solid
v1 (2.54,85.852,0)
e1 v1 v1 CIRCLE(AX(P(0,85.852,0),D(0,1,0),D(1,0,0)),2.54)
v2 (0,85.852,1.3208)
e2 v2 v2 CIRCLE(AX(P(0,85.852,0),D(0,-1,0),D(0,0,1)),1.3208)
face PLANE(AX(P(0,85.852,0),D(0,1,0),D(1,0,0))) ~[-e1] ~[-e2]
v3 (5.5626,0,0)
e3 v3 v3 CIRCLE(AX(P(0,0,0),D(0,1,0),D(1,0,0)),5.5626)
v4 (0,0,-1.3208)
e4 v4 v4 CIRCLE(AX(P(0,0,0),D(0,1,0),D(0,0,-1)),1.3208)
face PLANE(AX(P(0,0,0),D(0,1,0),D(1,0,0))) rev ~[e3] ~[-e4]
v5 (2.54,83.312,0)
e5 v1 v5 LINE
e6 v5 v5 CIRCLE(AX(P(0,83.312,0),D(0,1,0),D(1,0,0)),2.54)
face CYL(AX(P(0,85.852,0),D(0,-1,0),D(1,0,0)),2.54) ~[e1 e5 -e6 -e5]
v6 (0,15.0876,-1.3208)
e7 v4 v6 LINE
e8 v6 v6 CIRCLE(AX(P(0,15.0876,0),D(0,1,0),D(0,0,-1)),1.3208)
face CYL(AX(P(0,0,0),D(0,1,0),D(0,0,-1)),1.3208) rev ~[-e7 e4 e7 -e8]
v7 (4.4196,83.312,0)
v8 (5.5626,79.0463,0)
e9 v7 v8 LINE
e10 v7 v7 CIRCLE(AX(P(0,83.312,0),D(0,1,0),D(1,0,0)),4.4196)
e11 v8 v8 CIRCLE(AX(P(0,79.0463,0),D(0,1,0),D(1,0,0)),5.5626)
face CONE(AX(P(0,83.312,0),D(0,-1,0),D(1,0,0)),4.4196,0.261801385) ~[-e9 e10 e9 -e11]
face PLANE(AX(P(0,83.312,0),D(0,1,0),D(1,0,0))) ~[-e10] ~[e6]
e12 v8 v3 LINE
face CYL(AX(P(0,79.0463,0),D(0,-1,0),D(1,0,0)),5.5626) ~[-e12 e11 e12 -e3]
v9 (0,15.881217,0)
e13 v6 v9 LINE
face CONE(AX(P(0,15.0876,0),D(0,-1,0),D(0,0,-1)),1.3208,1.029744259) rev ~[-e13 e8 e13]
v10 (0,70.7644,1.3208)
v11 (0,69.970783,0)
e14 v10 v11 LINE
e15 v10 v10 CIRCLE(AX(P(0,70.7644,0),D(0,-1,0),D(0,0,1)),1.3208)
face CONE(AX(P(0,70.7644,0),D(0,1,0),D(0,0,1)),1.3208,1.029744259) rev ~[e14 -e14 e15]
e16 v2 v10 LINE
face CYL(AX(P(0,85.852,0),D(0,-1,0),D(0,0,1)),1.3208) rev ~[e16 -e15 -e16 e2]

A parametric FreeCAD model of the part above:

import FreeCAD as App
import Part
import Sketcher

V = App.Vector
Q = App.Units.Quantity


def add_polygon(sketch, points):
    """Adds a closed chain of lines whose ends are joined by coincident constraints."""
    first, n = sketch.GeometryCount, len(points)
    for a, b in zip(points, points[1:] + points[:1]):
        sketch.addGeometry(Part.LineSegment(App.Vector(*a, 0), App.Vector(*b, 0)), False)
    for i in range(n):
        sketch.addConstraint(Sketcher.Constraint("Coincident", first + i, 2, first + (i + 1) % n, 1))

doc = App.newDocument("Part")
params = doc.addObject("Spreadsheet::Sheet", "Params")
for row, (alias, value) in enumerate([
    ("sketch1_width", "0.1 in"),
    ("sketch1_width2", "0.219 in"),
    ("revolution_angle", "360 deg"),
    ("sketch2_diameter", "0.104 in"),
    ("hole_diameter", "0.104 in"),
    ("hole_depth", "0.594 in"),
    ("sketch3_diameter", "0.104 in"),
    ("hole2_diameter", "0.104 in"),
    ("hole2_depth", "0.594 in"),
], start=1):
    params.set(f"A{row}", alias)
    params.set(f"B{row}", "=" + value)
    params.setAlias(f"B{row}", alias)

body = doc.addObject("PartDesign::Body", "Body")

sketch1 = body.newObject("Sketcher::SketchObject", "Sketch")
sketch1.AttachmentSupport = (doc.getObject("XY_Plane"), [""])
sketch1.MapMode = "FlatFace"
add_polygon(sketch1, [(0, 85.9), (0, 0), (5.6, 0), (5.6, 79), (4.4, 83.3), (2.5, 83.3), (2.5, 85.9)])
sketch1.addConstraint([
    Sketcher.Constraint("Vertical", 0),
    Sketcher.Constraint("Horizontal", 1),
    Sketcher.Constraint("Vertical", 2),
    Sketcher.Constraint("Horizontal", 4),
    Sketcher.Constraint("Vertical", 5),
    Sketcher.Constraint("Horizontal", 6),
    Sketcher.Constraint("Coincident", 0, 2, -1, 1),
    Sketcher.Constraint("Equal", 6, 5),
    Sketcher.Constraint("DistanceX", 6, 2, 6, 1, Q("0.1 in")),
    Sketcher.Constraint("DistanceX", 1, 1, 1, 2, Q("0.219 in")),
    Sketcher.Constraint("DistanceY", -1, 1, 3, 2, Q("3.28 in")),
    Sketcher.Constraint("Angle", 3, Q("105 deg")),
    Sketcher.Constraint("DistanceX", 3, 2, 2, 2, Q("0.045 in")),
])
sketch1.setExpression("Constraints[15]", "Params.sketch1_width")
sketch1.setExpression("Constraints[16]", "Params.sketch1_width2")
revolution = body.newObject("PartDesign::Revolution", "Revolution")
revolution.Profile = sketch1
revolution.ReferenceAxis = (sketch1, ["V_Axis"])
revolution.setExpression("Angle", "Params.revolution_angle")

sketch2 = body.newObject("Sketcher::SketchObject", "Sketch001")
sketch2.AttachmentSupport = (doc.getObject("XZ_Plane"), [""])
sketch2.MapMode = "FlatFace"
sketch2.addGeometry(Part.Circle(V(0, 0, 0), V(0, 0, 1), 1.3), False)
sketch2.addConstraint([
    Sketcher.Constraint("Coincident", 0, 3, -1, 1),
    Sketcher.Constraint("Diameter", 0, Q("0.104 in")),
])
sketch2.setExpression("Constraints[1]", "Params.sketch2_diameter")
doc.recompute()
hole = body.newObject("PartDesign::Hole", "Hole")
hole.Profile = sketch2
hole.ThreadType = "None"
hole.setExpression("Diameter", "Params.hole_diameter")
hole.DepthType = "Dimension"
hole.setExpression("Depth", "Params.hole_depth")
hole.DrillPoint = "Angled"
hole.DrillPointAngle = 118

sketch3 = body.newObject("Sketcher::SketchObject", "Sketch002")
sketch3.AttachmentSupport = (doc.getObject("XZ_Plane"), [""])
sketch3.MapMode = "FlatFace"
sketch3.AttachmentOffset = App.Placement(V(0, 0, -3.38 * 25.4), App.Rotation())
sketch3.addGeometry(Part.Circle(V(0, 0, 0), V(0, 0, 1), 1.3), False)
sketch3.addConstraint([
    Sketcher.Constraint("Coincident", 0, 3, -1, 1),
    Sketcher.Constraint("Diameter", 0, Q("0.104 in")),
])
sketch3.setExpression("Constraints[1]", "Params.sketch3_diameter")
doc.recompute()
hole2 = body.newObject("PartDesign::Hole", "Hole001")
hole2.Profile = sketch3
hole2.ThreadType = "None"
hole2.setExpression("Diameter", "Params.hole2_diameter")
hole2.DepthType = "Dimension"
hole2.setExpression("Depth", "Params.hole2_depth")
hole2.DrillPoint = "Angled"
hole2.DrillPointAngle = 118
hole2.Reversed = True

doc.recompute()
